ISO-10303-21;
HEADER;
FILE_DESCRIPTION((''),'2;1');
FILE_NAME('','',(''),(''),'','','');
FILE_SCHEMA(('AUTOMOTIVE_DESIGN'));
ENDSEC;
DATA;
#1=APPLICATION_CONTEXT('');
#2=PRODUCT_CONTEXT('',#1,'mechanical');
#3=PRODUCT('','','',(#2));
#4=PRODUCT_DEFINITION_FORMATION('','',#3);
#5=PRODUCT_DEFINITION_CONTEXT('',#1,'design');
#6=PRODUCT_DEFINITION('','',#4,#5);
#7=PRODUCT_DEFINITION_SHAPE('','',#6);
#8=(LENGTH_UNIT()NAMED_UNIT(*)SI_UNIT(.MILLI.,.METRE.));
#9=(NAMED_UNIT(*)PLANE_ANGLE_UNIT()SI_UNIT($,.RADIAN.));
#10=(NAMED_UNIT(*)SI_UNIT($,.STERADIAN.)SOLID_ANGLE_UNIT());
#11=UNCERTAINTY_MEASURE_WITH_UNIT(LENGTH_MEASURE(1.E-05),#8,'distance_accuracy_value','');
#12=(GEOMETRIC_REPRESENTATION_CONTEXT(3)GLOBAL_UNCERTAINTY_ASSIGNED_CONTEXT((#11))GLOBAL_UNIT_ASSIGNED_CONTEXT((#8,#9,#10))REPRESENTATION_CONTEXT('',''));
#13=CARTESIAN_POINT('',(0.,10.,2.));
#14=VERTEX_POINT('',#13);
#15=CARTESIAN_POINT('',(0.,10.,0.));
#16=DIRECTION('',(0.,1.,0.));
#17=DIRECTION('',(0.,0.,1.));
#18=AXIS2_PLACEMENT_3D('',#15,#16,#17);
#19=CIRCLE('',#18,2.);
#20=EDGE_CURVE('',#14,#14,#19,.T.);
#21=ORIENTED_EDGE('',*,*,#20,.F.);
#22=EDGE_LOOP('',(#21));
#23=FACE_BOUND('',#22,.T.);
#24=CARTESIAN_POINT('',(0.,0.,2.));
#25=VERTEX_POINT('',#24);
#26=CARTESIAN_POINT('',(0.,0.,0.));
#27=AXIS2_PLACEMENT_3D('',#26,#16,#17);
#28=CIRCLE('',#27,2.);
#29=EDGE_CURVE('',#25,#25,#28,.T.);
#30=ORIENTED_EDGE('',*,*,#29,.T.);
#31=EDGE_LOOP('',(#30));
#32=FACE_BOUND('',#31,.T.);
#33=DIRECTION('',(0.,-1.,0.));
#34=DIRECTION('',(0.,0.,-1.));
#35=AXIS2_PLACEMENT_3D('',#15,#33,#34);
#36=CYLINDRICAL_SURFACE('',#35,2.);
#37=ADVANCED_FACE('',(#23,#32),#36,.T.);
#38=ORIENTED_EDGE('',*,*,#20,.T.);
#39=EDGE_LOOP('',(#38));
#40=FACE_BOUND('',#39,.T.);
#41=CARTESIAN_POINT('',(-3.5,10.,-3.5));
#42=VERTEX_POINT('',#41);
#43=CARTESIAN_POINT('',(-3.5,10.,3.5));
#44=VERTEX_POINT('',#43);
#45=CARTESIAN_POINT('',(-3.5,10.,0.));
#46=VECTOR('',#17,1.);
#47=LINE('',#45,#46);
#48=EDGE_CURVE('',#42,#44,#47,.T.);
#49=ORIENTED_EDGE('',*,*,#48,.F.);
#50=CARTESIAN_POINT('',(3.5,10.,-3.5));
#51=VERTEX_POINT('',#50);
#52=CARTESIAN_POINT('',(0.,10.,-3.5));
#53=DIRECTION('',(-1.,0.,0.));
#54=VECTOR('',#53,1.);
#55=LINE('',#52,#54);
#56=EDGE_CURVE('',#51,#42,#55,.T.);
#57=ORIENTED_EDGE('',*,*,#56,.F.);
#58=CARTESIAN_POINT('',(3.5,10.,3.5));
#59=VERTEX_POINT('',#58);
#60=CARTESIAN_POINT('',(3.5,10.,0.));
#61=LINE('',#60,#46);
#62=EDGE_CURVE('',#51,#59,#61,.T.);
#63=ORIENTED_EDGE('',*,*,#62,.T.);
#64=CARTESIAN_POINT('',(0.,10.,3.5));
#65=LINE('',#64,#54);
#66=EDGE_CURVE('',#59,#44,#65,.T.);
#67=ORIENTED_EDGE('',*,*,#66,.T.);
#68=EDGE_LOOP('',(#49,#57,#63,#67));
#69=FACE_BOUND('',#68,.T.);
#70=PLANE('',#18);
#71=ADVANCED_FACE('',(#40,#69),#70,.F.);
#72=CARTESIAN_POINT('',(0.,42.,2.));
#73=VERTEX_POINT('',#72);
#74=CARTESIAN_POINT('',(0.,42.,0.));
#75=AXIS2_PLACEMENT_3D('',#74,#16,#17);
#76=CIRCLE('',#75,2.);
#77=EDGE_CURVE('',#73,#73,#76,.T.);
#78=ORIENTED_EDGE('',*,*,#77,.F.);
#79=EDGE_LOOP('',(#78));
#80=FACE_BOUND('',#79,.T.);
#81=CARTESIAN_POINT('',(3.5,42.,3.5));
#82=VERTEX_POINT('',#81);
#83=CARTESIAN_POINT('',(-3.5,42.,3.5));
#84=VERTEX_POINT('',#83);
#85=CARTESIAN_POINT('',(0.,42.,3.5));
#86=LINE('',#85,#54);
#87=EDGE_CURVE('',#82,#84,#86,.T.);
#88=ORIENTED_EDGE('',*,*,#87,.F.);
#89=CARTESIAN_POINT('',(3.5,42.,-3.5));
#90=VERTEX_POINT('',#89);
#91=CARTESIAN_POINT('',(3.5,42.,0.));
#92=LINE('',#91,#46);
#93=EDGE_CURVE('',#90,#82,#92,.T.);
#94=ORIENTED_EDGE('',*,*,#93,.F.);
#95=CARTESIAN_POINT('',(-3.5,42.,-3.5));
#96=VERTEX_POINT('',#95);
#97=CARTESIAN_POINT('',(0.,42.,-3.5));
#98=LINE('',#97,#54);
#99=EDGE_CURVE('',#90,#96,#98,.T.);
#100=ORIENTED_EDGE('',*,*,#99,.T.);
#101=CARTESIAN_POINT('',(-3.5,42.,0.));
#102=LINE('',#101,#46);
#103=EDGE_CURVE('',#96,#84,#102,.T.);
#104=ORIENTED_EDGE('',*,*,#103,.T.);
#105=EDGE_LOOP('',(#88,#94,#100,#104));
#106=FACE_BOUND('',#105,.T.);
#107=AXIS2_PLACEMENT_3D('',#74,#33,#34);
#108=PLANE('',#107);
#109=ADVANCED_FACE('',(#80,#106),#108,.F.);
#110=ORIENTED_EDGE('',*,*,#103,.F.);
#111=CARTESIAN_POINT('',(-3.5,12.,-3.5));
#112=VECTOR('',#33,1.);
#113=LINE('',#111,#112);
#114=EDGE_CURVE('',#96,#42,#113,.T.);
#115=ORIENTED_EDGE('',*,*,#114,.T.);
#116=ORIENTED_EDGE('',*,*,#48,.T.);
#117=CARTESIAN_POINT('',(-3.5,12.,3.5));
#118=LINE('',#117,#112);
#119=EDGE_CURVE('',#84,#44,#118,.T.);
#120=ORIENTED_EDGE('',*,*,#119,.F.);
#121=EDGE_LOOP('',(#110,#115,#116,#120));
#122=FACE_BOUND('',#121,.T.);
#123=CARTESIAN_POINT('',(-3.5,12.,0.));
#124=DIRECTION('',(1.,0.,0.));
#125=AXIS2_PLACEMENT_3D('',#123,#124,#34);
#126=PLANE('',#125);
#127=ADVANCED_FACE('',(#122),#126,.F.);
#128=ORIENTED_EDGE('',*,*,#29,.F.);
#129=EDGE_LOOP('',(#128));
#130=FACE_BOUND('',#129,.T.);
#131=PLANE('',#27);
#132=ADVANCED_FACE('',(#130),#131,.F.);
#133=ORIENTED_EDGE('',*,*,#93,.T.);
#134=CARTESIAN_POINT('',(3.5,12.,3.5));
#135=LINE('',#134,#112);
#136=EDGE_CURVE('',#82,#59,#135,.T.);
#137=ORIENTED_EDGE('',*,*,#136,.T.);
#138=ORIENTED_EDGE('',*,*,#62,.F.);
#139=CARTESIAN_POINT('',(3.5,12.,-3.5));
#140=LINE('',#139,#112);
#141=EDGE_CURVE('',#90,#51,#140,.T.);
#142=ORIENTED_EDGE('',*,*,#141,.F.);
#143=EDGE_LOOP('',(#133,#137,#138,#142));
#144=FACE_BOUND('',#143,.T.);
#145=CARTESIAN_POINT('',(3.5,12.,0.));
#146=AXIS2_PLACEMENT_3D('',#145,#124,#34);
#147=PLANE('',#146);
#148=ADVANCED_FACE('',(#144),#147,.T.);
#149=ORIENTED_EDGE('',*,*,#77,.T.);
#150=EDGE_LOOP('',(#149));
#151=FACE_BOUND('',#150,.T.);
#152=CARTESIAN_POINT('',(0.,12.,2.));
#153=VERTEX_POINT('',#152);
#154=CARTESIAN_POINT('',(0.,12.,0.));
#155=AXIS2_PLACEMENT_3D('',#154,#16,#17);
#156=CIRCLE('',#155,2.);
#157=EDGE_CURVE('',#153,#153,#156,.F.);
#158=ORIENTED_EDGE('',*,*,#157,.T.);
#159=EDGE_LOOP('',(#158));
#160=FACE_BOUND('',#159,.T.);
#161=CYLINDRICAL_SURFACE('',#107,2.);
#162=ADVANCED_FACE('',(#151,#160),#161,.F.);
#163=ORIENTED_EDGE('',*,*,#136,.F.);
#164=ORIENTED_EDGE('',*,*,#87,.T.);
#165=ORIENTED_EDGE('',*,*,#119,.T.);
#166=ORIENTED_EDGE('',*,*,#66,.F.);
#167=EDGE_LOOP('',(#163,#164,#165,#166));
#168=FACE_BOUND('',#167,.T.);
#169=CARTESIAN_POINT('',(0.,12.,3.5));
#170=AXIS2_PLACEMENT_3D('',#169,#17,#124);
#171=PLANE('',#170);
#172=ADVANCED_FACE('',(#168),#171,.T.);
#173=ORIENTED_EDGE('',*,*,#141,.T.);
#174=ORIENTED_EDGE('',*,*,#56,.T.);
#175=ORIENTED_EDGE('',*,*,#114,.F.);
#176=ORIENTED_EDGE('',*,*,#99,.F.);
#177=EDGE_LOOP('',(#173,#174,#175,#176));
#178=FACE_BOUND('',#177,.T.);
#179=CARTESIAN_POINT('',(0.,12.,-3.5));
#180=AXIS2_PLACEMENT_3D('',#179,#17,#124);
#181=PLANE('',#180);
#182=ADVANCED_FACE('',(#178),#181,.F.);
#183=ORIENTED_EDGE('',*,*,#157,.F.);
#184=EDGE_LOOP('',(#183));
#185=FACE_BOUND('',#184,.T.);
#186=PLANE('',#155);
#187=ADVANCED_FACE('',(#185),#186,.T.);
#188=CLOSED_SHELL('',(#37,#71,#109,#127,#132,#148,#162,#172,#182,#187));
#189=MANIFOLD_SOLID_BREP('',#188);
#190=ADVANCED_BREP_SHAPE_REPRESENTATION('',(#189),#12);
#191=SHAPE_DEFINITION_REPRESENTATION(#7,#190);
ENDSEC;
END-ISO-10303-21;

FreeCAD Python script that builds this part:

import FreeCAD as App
import Part
import Sketcher

V = App.Vector
Q = App.Units.Quantity

doc = App.newDocument("Part")
body = doc.addObject("PartDesign::Body", "Body")

# Sketch on XZ plane
sketch1 = doc.addObject("Sketcher::SketchObject", "Sketch")
body.addObject(sketch1)
sketch1.AttachmentSupport = (doc.XZ_Plane, [""])
sketch1.MapMode = "FlatFace"
sketch1.addGeometry(Part.Circle(V(0, 0, 0), V(0, 0, 1), 2), False)
sketch1.addConstraint(Sketcher.Constraint("Coincident", 0, 3, -1, 1))
sketch1.addConstraint(Sketcher.Constraint("Diameter", 0, Q("4 mm")))
pad1 = doc.addObject("PartDesign::Pad", "Pad")
body.addObject(pad1)
pad1.Profile = sketch1
pad1.Length = 10
pad1.Reversed = True

# Sketch on XZ plane
sketch2 = doc.addObject("Sketcher::SketchObject", "Sketch001")
body.addObject(sketch2)
sketch2.AttachmentSupport = (doc.XZ_Plane, [""])
sketch2.MapMode = "FlatFace"
sketch2.AttachmentOffset = App.Placement(V(0, 0, -10), App.Rotation())
sketch2.addGeometry(Part.LineSegment(V(-4, -4, 0), V(-4, 4, 0)), False)
sketch2.addGeometry(Part.LineSegment(V(-4, 4, 0), V(4, 4, 0)), False)
sketch2.addGeometry(Part.LineSegment(V(4, 4, 0), V(4, -4, 0)), False)
sketch2.addGeometry(Part.LineSegment(V(4, -4, 0), V(-4, -4, 0)), False)
sketch2.addConstraint(Sketcher.Constraint("Coincident", 0, 2, 1, 1))
sketch2.addConstraint(Sketcher.Constraint("Coincident", 1, 2, 2, 1))
sketch2.addConstraint(Sketcher.Constraint("Coincident", 2, 2, 3, 1))
sketch2.addConstraint(Sketcher.Constraint("Coincident", 3, 2, 0, 1))
sketch2.addConstraint(Sketcher.Constraint("Vertical", 0))
sketch2.addConstraint(Sketcher.Constraint("Horizontal", 1))
sketch2.addConstraint(Sketcher.Constraint("Vertical", 2))
sketch2.addConstraint(Sketcher.Constraint("Horizontal", 3))
sketch2.addConstraint(Sketcher.Constraint("Symmetric", 0, 2, 2, 2, -1, 1))
sketch2.addConstraint(Sketcher.Constraint("Equal", 3, 0))
sketch2.addConstraint(Sketcher.Constraint("DistanceX", 1, 1, 1, 2, Q("7 mm")))
pad2 = doc.addObject("PartDesign::Pad", "Pad001")
body.addObject(pad2)
pad2.Profile = sketch2
pad2.Length = 2
pad2.Reversed = True

# Sketch on XZ plane
sketch3 = doc.addObject("Sketcher::SketchObject", "Sketch002")
body.addObject(sketch3)
sketch3.AttachmentSupport = (doc.XZ_Plane, [""])
sketch3.MapMode = "FlatFace"
sketch3.AttachmentOffset = App.Placement(V(0, 0, -12), App.Rotation())
sketch3.addGeometry(Part.LineSegment(V(-3.5, -3.5, 0), V(-3.5, 3.5, 0)), False)
sketch3.addGeometry(Part.LineSegment(V(-3.5, 3.5, 0), V(3.5, 3.5, 0)), False)
sketch3.addGeometry(Part.LineSegment(V(3.5, 3.5, 0), V(3.5, -3.5, 0)), False)
sketch3.addGeometry(Part.LineSegment(V(3.5, -3.5, 0), V(-3.5, -3.5, 0)), False)
sketch3.addGeometry(Part.Circle(V(0, 0, 0), V(0, 0, 1), 2), False)
sketch3.addConstraint(Sketcher.Constraint("Coincident", 0, 2, 1, 1))
sketch3.addConstraint(Sketcher.Constraint("Coincident", 1, 2, 2, 1))
sketch3.addConstraint(Sketcher.Constraint("Coincident", 2, 2, 3, 1))
sketch3.addConstraint(Sketcher.Constraint("Coincident", 3, 2, 0, 1))
sketch3.addConstraint(Sketcher.Constraint("Vertical", 0))
sketch3.addConstraint(Sketcher.Constraint("Horizontal", 1))
sketch3.addConstraint(Sketcher.Constraint("Vertical", 2))
sketch3.addConstraint(Sketcher.Constraint("Horizontal", 3))
sketch3.addConstraint(Sketcher.Constraint("Coincident", 4, 3, -1, 1))
sketch3.addConstraint(Sketcher.Constraint("Symmetric", 0, 2, 2, 2, -1, 1))
sketch3.addConstraint(Sketcher.Constraint("Equal", 3, 0))
sketch3.addConstraint(Sketcher.Constraint("Diameter", 4, Q("4 mm")))
sketch3.addConstraint(Sketcher.Constraint("DistanceX", 1, 1, 1, 2, Q("7 mm")))
pad3 = doc.addObject("PartDesign::Pad", "Pad002")
body.addObject(pad3)
pad3.Profile = sketch3
pad3.Length = 30
pad3.Reversed = True

doc.recompute()
